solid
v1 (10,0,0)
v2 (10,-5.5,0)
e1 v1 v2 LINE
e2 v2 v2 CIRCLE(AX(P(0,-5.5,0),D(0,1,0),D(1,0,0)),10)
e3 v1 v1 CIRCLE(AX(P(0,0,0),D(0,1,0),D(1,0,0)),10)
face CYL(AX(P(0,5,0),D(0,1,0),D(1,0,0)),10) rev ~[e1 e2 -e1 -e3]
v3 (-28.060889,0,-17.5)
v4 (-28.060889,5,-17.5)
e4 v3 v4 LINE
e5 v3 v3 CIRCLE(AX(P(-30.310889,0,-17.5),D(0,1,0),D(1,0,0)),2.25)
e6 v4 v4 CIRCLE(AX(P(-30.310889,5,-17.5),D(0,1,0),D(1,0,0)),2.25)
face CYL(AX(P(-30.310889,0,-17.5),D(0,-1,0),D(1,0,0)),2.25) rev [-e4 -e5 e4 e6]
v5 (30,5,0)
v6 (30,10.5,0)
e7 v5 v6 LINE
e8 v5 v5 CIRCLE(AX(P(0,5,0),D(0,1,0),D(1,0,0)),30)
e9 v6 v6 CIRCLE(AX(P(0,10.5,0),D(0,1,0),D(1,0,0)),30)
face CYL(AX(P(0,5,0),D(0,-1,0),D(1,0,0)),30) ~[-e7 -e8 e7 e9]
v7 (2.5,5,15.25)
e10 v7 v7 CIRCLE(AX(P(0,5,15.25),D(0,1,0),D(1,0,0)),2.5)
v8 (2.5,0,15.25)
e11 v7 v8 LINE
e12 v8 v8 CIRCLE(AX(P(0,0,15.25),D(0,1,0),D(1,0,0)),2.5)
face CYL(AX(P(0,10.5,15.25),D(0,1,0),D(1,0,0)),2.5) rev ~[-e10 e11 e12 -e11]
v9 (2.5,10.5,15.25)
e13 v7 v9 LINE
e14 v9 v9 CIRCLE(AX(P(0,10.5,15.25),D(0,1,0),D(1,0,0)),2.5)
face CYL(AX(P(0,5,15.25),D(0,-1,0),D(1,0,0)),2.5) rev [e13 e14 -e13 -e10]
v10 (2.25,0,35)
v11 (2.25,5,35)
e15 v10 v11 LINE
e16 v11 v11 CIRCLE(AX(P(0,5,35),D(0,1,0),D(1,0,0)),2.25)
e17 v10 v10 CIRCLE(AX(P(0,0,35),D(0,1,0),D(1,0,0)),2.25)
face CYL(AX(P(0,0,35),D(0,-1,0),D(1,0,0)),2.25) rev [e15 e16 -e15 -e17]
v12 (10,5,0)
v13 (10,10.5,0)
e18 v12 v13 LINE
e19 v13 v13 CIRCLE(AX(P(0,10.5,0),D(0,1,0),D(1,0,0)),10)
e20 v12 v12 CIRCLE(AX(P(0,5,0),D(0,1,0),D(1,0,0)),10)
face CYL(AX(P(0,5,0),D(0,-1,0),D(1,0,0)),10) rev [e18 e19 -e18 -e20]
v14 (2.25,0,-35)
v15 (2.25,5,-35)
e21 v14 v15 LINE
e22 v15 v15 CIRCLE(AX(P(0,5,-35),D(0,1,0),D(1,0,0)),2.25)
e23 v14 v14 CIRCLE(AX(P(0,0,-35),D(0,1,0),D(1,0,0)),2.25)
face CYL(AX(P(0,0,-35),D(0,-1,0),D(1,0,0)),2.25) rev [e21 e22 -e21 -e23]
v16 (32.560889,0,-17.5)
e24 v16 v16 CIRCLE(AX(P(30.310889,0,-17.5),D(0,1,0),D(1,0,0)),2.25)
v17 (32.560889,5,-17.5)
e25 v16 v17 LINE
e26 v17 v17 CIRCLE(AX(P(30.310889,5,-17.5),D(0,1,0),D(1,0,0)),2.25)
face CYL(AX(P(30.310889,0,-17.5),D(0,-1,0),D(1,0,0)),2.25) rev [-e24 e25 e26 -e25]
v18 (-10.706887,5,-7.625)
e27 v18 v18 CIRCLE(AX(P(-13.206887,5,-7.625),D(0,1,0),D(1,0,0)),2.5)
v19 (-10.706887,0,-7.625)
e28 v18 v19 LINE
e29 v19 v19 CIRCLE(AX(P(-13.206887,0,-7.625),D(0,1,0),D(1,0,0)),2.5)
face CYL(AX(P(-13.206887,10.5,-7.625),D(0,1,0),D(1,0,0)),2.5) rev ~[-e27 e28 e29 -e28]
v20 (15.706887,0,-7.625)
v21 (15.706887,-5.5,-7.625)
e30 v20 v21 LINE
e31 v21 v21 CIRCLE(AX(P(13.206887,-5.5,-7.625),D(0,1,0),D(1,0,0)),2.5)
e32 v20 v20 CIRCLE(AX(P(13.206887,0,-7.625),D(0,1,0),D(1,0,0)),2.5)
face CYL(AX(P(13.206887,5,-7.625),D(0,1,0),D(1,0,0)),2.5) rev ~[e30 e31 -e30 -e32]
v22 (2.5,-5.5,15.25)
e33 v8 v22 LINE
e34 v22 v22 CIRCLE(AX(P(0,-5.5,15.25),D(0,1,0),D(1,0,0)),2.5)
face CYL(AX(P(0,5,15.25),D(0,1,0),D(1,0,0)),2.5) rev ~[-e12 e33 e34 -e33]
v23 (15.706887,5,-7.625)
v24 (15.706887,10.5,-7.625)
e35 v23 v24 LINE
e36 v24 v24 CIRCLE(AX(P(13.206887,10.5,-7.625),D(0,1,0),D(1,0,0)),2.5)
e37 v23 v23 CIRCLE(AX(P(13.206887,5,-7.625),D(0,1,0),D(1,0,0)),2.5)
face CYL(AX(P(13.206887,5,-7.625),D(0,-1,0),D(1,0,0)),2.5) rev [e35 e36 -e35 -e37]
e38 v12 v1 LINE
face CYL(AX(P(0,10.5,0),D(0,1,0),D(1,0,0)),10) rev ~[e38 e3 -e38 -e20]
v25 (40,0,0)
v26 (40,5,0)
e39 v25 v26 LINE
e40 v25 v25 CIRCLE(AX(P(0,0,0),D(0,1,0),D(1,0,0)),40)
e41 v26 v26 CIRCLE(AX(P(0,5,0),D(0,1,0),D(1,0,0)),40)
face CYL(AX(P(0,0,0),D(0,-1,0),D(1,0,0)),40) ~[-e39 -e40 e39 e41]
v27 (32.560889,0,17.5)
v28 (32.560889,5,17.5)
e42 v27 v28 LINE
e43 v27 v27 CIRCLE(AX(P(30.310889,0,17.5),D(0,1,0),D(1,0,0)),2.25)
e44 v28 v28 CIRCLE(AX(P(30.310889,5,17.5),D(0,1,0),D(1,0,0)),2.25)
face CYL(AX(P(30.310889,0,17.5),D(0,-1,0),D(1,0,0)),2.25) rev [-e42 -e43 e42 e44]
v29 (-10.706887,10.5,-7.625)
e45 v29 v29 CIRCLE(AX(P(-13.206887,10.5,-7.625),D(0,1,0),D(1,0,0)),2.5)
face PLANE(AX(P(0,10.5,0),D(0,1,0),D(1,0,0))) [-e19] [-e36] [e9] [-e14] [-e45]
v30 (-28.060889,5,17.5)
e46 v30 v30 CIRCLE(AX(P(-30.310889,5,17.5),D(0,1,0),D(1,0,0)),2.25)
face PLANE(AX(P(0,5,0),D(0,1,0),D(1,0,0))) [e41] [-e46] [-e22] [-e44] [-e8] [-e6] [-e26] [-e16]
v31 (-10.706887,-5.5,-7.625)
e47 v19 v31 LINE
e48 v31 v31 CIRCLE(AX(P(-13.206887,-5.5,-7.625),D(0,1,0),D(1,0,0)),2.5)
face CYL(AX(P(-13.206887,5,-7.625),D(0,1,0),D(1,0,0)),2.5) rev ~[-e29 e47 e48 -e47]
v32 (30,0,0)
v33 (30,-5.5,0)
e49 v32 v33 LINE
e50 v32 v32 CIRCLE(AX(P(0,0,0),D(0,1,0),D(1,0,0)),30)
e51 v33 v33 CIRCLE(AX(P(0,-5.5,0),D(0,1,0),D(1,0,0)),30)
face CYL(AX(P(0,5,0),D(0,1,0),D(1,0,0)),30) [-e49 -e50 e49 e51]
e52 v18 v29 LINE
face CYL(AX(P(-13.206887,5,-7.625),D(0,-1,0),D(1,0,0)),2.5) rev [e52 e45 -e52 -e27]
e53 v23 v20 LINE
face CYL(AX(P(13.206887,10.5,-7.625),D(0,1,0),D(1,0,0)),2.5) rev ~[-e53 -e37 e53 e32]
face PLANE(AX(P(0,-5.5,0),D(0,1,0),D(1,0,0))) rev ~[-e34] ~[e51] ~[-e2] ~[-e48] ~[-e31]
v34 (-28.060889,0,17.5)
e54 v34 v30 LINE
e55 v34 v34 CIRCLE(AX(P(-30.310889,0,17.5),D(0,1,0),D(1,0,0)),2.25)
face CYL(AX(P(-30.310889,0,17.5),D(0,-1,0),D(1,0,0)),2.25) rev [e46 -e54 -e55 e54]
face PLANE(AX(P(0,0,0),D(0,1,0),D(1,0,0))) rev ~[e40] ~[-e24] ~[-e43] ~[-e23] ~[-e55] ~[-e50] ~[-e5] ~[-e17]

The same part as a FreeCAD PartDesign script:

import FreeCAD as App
import Part
import Sketcher

V = App.Vector
Q = App.Units.Quantity

doc = App.newDocument("Part")
body = doc.addObject("PartDesign::Body", "Body")

sketch1 = body.newObject("Sketcher::SketchObject", "Sketch")
sketch1.AttachmentSupport = (doc.getObject("XZ_Plane"), [""])
sketch1.MapMode = "FlatFace"
sketch1.addGeometry([
    Part.Circle(V(0, 0, 0), V(0, 0, 1), 40),
    Part.Circle(V(-30.310889, 17.5, 0), V(0, 0, 1), 2.25),
    Part.Circle(V(0, 35, 0), V(0, 0, 1), 2.25),
    Part.Circle(V(30.310889, 17.5, 0), V(0, 0, 1), 2.25),
    Part.Circle(V(-30.310889, -17.5, 0), V(0, 0, 1), 2.25),
    Part.Circle(V(30.310889, -17.5, 0), V(0, 0, 1), 2.25),
    Part.Circle(V(0, -35, 0), V(0, 0, 1), 2.25),
], False)
sketch1.addConstraint([
    Sketcher.Constraint("Coincident", 0, 3, -1, 1),
    Sketcher.Constraint("Equal", 1, 2),
    Sketcher.Constraint("Equal", 2, 3),
    Sketcher.Constraint("Equal", 3, 4),
    Sketcher.Constraint("Equal", 4, 5),
    Sketcher.Constraint("Equal", 5, 6),
    Sketcher.Constraint("Symmetric", 3, 3, 4, 3, -1, 1),
    Sketcher.Constraint("Symmetric", 1, 3, 5, 3, -1, 1),
    Sketcher.Constraint("Symmetric", 2, 3, 6, 3, -1, 1),
    Sketcher.Constraint("Symmetric", 1, 3, 3, 3, -2),
    Sketcher.Constraint("PointOnObject", 2, 3, -2),
    Sketcher.Constraint("Diameter", 0, Q("80 mm")),
    Sketcher.Constraint("Diameter", 1, Q("4.5 mm")),
    Sketcher.Constraint("DistanceY", -1, 1, 2, 3, Q("35 mm")),
    Sketcher.Constraint("DistanceY", 4, 3, 1, 3, Q("35 mm")),
    Sketcher.Constraint("DistanceX", 1, 3, -1, 1, Q("30.310889 mm")),
])
pad1 = body.newObject("PartDesign::Pad", "Pad")
pad1.Profile = sketch1
pad1.Length = 5
pad1.Reversed = True

sketch2 = body.newObject("Sketcher::SketchObject", "Sketch001")
sketch2.AttachmentSupport = (doc.getObject("XZ_Plane"), [""])
sketch2.MapMode = "FlatFace"
sketch2.AttachmentOffset = App.Placement(V(0, 0, -5), App.Rotation())
sketch2.addGeometry([
    Part.Circle(V(0, 0, 0), V(0, 0, 1), 30),
    Part.Circle(V(0, 15.25, 0), V(0, 0, 1), 2.5),
    Part.Circle(V(0, 0, 0), V(0, 0, 1), 10),
    Part.Circle(V(-13.206887, -7.625, 0), V(0, 0, 1), 2.5),
    Part.Circle(V(13.206887, -7.625, 0), V(0, 0, 1), 2.5),
], False)
sketch2.addConstraint([
    Sketcher.Constraint("Coincident", 0, 3, -1, 1),
    Sketcher.Constraint("Coincident", 2, 3, -1, 1),
    Sketcher.Constraint("Equal", 1, 3),
    Sketcher.Constraint("Equal", 3, 4),
    Sketcher.Constraint("Symmetric", 3, 3, 4, 3, -2),
    Sketcher.Constraint("PointOnObject", 1, 3, -2),
    Sketcher.Constraint("Diameter", 0, Q("60 mm")),
    Sketcher.Constraint("Diameter", 1, Q("5 mm")),
    Sketcher.Constraint("Diameter", 2, Q("20 mm")),
    Sketcher.Constraint("DistanceY", -1, 1, 1, 3, Q("15.25 mm")),
    Sketcher.Constraint("DistanceY", 3, 3, -1, 1, Q("7.625 mm")),
    Sketcher.Constraint("DistanceX", 3, 3, -1, 1, Q("13.206887 mm")),
])
pad2 = body.newObject("PartDesign::Pad", "Pad001")
pad2.Profile = sketch2
pad2.Type = "TwoLengths"
pad2.Length = 5.5
pad2.Length2 = 10.5
pad2.Reversed = True

sketch3 = body.newObject("Sketcher::SketchObject", "Sketch002")
sketch3.AttachmentSupport = (doc.getObject("XZ_Plane"), [""])
sketch3.MapMode = "FlatFace"
sketch3.AttachmentOffset = App.Placement(V(0, 0, -10.5), App.Rotation())
sketch3.addGeometry([
    Part.Circle(V(0, 15.25, 0), V(0, 0, 1), 2.5),
    Part.Circle(V(13.206887, -7.625, 0), V(0, 0, 1), 2.5),
    Part.Circle(V(0, 0, 0), V(0, 0, 1), 10),
    Part.Circle(V(-13.206887, -7.625, 0), V(0, 0, 1), 2.5),
], False)
sketch3.addConstraint([
    Sketcher.Constraint("Coincident", 2, 3, -1, 1),
    Sketcher.Constraint("Equal", 0, 1),
    Sketcher.Constraint("Equal", 1, 3),
    Sketcher.Constraint("Symmetric", 1, 3, 3, 3, -2),
    Sketcher.Constraint("PointOnObject", 0, 3, -2),
    Sketcher.Constraint("Diameter", 0, Q("5 mm")),
    Sketcher.Constraint("Diameter", 2, Q("20 mm")),
    Sketcher.Constraint("DistanceY", -1, 1, 0, 3, Q("15.25 mm")),
    Sketcher.Constraint("DistanceY", 1, 3, -1, 1, Q("7.625 mm")),
    Sketcher.Constraint("DistanceX", -1, 1, 1, 3, Q("13.206887 mm")),
])
pocket1 = body.newObject("PartDesign::Pocket", "Pocket")
pocket1.Profile = sketch3
pocket1.Type = "ThroughAll"
pocket1.Reversed = True

doc.recompute()
